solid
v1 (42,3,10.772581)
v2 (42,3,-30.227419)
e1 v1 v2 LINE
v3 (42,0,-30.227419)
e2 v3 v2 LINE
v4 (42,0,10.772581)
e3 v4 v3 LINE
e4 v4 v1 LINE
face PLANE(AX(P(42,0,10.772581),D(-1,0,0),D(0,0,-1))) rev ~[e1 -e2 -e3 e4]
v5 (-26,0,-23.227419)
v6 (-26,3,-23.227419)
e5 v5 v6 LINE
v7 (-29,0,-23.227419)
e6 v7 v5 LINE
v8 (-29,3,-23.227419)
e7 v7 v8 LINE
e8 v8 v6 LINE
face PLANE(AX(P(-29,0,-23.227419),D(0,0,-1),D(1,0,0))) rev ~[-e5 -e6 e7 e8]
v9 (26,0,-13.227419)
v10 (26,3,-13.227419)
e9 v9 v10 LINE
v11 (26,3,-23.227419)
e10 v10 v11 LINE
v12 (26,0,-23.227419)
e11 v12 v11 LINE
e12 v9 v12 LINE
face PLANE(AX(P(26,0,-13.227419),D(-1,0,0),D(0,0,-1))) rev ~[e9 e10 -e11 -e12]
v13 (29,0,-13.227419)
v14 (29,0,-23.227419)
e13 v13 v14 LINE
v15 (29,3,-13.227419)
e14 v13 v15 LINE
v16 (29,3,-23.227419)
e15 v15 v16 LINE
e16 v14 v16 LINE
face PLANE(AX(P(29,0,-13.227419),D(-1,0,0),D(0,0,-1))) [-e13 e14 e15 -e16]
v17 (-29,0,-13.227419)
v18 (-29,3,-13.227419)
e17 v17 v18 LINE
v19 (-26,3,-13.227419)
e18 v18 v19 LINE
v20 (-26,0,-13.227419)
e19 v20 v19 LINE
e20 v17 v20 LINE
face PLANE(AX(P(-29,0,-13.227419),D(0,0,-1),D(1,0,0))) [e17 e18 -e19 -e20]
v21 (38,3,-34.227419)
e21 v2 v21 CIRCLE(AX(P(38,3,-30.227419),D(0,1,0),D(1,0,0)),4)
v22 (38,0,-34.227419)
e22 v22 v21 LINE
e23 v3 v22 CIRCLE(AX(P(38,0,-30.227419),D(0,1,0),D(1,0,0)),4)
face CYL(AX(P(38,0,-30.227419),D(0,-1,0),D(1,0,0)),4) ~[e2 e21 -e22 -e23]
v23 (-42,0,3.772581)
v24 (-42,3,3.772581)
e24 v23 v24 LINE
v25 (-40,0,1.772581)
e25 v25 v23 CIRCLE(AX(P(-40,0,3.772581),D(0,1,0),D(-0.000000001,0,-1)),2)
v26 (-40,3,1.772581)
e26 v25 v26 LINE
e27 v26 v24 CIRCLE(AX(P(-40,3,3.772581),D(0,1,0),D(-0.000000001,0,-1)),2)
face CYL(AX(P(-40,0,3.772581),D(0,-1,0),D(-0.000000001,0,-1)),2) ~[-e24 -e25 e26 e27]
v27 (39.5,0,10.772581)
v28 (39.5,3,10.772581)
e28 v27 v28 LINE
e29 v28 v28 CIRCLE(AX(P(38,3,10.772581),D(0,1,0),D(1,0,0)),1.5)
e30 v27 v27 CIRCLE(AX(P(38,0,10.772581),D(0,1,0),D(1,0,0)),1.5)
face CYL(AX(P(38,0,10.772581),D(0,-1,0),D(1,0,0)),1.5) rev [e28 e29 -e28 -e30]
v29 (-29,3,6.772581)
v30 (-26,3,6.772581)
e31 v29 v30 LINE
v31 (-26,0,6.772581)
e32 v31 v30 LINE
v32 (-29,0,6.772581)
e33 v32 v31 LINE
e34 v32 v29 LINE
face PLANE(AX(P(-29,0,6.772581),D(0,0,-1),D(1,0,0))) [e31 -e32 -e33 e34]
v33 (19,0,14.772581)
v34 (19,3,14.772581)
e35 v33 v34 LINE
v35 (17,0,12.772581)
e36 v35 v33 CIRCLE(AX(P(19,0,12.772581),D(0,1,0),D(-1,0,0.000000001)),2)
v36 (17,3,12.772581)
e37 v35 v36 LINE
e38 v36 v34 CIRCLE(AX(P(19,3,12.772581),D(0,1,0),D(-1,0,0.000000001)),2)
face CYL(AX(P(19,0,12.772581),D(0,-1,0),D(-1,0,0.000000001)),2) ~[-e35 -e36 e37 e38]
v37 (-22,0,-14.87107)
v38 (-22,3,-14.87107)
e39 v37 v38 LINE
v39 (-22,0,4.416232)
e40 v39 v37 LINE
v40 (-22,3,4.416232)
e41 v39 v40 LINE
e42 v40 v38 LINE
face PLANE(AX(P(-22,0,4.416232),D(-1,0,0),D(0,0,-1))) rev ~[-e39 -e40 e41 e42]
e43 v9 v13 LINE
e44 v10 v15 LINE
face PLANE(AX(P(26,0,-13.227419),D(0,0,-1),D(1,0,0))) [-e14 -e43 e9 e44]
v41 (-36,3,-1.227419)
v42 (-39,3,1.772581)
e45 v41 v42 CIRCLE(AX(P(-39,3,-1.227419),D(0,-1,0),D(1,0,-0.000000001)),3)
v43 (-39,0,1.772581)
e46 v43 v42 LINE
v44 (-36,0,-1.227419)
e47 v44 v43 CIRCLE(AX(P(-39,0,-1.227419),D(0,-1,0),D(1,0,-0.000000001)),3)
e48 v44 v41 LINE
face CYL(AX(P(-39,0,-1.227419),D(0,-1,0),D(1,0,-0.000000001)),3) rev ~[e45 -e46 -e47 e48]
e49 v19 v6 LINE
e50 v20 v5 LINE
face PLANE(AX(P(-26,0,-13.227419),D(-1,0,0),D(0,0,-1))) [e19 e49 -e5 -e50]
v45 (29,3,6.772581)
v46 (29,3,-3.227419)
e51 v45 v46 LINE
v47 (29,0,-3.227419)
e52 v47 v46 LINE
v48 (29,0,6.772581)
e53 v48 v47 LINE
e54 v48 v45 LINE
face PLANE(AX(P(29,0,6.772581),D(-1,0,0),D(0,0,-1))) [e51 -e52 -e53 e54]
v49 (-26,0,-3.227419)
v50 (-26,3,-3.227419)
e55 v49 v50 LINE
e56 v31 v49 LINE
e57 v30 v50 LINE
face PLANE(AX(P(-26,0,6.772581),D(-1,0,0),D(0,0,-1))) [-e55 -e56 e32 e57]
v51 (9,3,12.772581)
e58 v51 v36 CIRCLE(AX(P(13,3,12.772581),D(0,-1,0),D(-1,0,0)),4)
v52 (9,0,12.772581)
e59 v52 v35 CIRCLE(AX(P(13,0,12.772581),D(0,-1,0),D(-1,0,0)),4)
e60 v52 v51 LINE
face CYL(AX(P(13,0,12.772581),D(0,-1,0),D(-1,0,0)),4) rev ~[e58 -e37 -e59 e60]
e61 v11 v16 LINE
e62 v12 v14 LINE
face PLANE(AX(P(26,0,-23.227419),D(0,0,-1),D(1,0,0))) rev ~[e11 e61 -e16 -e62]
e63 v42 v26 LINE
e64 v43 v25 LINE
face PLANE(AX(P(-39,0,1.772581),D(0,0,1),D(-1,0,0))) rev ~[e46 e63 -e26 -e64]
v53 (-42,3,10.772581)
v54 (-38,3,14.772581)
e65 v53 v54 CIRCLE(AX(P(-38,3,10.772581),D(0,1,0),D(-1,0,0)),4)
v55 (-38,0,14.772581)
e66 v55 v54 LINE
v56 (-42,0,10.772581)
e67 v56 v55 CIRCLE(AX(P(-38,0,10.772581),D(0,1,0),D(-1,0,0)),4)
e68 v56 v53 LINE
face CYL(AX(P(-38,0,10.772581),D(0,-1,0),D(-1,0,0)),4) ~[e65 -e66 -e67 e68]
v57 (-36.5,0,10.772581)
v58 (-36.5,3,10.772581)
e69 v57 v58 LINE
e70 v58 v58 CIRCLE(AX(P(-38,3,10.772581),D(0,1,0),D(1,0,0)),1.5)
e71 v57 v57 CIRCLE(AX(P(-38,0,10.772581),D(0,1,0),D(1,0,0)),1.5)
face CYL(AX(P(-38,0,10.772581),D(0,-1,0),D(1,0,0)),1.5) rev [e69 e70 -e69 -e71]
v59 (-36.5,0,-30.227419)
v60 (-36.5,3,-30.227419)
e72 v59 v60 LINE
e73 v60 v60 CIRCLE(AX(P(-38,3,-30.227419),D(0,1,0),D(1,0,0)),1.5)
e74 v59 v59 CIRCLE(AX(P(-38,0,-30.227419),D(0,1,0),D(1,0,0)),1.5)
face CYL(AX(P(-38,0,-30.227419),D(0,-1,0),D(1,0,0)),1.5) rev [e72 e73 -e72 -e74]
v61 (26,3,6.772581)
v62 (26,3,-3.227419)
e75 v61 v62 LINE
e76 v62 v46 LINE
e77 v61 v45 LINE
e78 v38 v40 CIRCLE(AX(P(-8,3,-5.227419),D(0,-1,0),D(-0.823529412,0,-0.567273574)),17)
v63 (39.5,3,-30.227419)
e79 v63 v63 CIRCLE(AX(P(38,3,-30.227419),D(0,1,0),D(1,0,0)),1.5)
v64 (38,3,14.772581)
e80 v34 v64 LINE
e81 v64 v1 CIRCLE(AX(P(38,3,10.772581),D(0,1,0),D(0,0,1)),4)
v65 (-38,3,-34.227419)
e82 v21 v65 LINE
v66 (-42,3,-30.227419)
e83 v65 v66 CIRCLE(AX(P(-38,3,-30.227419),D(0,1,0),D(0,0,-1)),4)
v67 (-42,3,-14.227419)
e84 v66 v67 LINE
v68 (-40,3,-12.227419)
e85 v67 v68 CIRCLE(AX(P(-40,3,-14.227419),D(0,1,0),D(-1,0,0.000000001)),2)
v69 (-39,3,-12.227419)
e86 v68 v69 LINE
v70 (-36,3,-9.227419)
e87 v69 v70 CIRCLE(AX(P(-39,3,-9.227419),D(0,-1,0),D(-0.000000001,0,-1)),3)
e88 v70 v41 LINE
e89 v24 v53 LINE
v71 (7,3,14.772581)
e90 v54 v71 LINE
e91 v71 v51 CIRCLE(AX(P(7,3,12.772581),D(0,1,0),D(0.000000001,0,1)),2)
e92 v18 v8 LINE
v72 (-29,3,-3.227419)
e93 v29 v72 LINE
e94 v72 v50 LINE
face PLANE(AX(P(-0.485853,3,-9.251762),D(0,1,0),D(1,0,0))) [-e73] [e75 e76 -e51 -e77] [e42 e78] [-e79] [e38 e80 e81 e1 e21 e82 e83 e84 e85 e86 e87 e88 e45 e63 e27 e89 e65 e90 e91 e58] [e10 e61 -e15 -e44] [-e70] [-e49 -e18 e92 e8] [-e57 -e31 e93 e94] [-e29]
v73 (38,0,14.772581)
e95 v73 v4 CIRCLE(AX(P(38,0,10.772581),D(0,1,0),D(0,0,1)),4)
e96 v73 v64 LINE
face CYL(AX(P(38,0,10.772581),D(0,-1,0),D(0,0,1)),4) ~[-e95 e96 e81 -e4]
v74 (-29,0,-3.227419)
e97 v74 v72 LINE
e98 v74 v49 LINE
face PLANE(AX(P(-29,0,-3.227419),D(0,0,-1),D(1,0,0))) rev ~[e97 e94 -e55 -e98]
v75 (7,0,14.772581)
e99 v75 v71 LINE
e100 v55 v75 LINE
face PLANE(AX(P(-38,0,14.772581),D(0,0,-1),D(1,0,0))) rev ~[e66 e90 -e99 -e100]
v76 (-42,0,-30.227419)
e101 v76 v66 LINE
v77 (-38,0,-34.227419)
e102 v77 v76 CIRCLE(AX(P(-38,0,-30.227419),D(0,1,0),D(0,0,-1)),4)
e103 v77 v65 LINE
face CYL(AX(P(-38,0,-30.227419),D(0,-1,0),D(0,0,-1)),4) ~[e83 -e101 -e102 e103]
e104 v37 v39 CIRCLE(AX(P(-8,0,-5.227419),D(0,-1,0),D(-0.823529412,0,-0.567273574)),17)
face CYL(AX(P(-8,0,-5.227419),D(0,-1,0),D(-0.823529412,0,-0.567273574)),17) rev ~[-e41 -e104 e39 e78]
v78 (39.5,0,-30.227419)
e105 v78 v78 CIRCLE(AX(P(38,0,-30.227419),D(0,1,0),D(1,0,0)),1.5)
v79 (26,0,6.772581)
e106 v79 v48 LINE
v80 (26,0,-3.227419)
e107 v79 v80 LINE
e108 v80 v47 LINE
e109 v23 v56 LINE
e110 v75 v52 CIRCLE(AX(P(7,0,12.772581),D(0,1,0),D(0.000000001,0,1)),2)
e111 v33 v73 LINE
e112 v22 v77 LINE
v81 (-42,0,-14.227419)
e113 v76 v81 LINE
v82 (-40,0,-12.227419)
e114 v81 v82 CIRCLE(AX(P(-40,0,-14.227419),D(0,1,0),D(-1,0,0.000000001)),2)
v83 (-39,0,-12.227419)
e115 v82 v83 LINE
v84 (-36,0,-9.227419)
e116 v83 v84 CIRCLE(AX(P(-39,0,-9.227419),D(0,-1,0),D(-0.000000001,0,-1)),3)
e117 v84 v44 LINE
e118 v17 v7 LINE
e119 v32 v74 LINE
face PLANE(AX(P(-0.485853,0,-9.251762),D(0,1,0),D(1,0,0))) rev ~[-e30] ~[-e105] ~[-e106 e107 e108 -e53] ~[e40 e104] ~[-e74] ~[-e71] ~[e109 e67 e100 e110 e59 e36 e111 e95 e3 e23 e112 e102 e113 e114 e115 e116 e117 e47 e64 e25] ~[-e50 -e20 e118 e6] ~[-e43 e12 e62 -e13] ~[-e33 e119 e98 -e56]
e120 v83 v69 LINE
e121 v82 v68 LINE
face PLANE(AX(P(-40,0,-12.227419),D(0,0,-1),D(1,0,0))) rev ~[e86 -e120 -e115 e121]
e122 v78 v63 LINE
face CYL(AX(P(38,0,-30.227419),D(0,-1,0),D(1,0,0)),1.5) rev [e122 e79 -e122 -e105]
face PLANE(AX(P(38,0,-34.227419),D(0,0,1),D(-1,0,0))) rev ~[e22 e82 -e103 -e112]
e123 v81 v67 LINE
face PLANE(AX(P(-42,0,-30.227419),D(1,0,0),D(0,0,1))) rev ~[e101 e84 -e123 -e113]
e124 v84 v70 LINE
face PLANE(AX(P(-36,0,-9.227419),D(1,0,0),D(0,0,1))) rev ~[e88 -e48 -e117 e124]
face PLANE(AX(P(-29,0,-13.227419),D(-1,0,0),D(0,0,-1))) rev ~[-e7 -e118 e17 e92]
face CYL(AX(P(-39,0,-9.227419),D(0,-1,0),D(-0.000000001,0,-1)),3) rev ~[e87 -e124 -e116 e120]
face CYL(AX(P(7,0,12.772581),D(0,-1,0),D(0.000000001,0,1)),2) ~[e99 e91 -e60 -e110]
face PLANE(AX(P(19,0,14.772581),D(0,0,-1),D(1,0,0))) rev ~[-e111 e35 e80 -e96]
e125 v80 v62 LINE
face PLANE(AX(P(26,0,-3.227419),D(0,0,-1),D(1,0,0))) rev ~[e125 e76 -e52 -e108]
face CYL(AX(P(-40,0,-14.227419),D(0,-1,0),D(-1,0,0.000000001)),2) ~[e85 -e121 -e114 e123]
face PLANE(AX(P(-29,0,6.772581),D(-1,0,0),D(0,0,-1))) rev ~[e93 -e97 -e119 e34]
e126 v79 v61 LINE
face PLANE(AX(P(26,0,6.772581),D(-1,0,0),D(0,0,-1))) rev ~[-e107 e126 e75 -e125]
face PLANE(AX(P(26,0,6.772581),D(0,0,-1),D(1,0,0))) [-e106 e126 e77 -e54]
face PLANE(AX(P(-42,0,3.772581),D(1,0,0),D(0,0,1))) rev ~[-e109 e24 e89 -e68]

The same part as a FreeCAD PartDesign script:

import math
import FreeCAD as App
import Part
import Sketcher
from FreeCAD import Vector

doc = App.newDocument("Part")
body = doc.addObject("PartDesign::Body", "Body")

# Sketch on XZ plane
sketch1 = doc.addObject("Sketcher::SketchObject", "Sketch")
body.addObject(sketch1)
sketch1.AttachmentSupport = (doc.XZ_Plane, [""])
sketch1.MapMode = "FlatFace"
sketch1.addGeometry([
    Part.LineSegment(Vector(-42, -30.227419, 0), Vector(-42, -14.227419, 0)),  # 0
    Part.ArcOfCircle(Part.Circle(Vector(-40, -14.227419, 0), Vector(0, 0, 1), 2), math.radians(90), math.radians(180)),  # 1
    Part.LineSegment(Vector(-40, -12.227419, 0), Vector(-39, -12.227419, 0)),  # 2
    Part.ArcOfCircle(Part.Circle(Vector(-39, -9.227419, 0), Vector(0, 0, 1), 3), math.radians(-90), math.radians(0)),  # 3
    Part.LineSegment(Vector(-36, -9.227419, 0), Vector(-36, -1.227419, 0)),  # 4
    Part.ArcOfCircle(Part.Circle(Vector(-39, -1.227419, 0), Vector(0, 0, 1), 3), math.radians(0), math.radians(90)),  # 5
    Part.LineSegment(Vector(-39, 1.772581, 0), Vector(-40, 1.772581, 0)),  # 6
    Part.ArcOfCircle(Part.Circle(Vector(-40, 3.772581, 0), Vector(0, 0, 1), 2), math.radians(-180), math.radians(-90)),  # 7
    Part.LineSegment(Vector(-42, 3.772581, 0), Vector(-42, 10.772581, 0)),  # 8
    Part.ArcOfCircle(Part.Circle(Vector(-38, 10.772581, 0), Vector(0, 0, 1), 4), math.radians(90), math.radians(180)),  # 9
    Part.LineSegment(Vector(-38, 14.772581, 0), Vector(7, 14.772581, 0)),  # 10
    Part.ArcOfCircle(Part.Circle(Vector(7, 12.772581, 0), Vector(0, 0, 1), 2), math.radians(0), math.radians(90)),  # 11
    Part.ArcOfCircle(Part.Circle(Vector(13, 12.772581, 0), Vector(0, 0, 1), 4), math.radians(180), math.radians(360)),  # 12
    Part.ArcOfCircle(Part.Circle(Vector(19, 12.772581, 0), Vector(0, 0, 1), 2), math.radians(90), math.radians(180)),  # 13
    Part.LineSegment(Vector(19, 14.772581, 0), Vector(38, 14.772581, 0)),  # 14
    Part.ArcOfCircle(Part.Circle(Vector(38, 10.772581, 0), Vector(0, 0, 1), 4), math.radians(0), math.radians(90)),  # 15
    Part.LineSegment(Vector(42, 10.772581, 0), Vector(42, -30.227419, 0)),  # 16
    Part.ArcOfCircle(Part.Circle(Vector(38, -30.227419, 0), Vector(0, 0, 1), 4), math.radians(-90), math.radians(0)),  # 17
    Part.LineSegment(Vector(38, -34.227419, 0), Vector(-38, -34.227419, 0)),  # 18
    Part.ArcOfCircle(Part.Circle(Vector(-38, -30.227419, 0), Vector(0, 0, 1), 4), math.radians(180), math.radians(270)),  # 19
    Part.Circle(Vector(-38, 10.772581, 0), Vector(0, 0, 1), 1.5),  # 20
    Part.LineSegment(Vector(-26, 6.772581, 0), Vector(-29, 6.772581, 0)),  # 21
    Part.LineSegment(Vector(-29, 6.772581, 0), Vector(-29, -3.227419, 0)),  # 22
    Part.LineSegment(Vector(-29, -3.227419, 0), Vector(-26, -3.227419, 0)),  # 23
    Part.LineSegment(Vector(-26, -3.227419, 0), Vector(-26, 6.772581, 0)),  # 24
    Part.ArcOfCircle(Part.Circle(Vector(-8, -5.227419, 0), Vector(0, 0, 1), 17), math.radians(-145.439678), math.radians(145.439678)),  # 25
    Part.LineSegment(Vector(-22, 4.416232, 0), Vector(-22, -14.87107, 0)),  # 26
    Part.Circle(Vector(38, 10.772581, 0), Vector(0, 0, 1), 1.5),  # 27
    Part.LineSegment(Vector(29, 6.772581, 0), Vector(26, 6.772581, 0)),  # 28
    Part.LineSegment(Vector(26, 6.772581, 0), Vector(26, -3.227419, 0)),  # 29
    Part.LineSegment(Vector(26, -3.227419, 0), Vector(29, -3.227419, 0)),  # 30
    Part.LineSegment(Vector(29, -3.227419, 0), Vector(29, 6.772581, 0)),  # 31
    Part.LineSegment(Vector(-26, -13.227419, 0), Vector(-29, -13.227419, 0)),  # 32
    Part.LineSegment(Vector(-29, -13.227419, 0), Vector(-29, -23.227419, 0)),  # 33
    Part.LineSegment(Vector(-29, -23.227419, 0), Vector(-26, -23.227419, 0)),  # 34
    Part.LineSegment(Vector(-26, -23.227419, 0), Vector(-26, -13.227419, 0)),  # 35
    Part.Circle(Vector(-38, -30.227419, 0), Vector(0, 0, 1), 1.5),  # 36
    Part.LineSegment(Vector(29, -13.227419, 0), Vector(26, -13.227419, 0)),  # 37
    Part.LineSegment(Vector(26, -13.227419, 0), Vector(26, -23.227419, 0)),  # 38
    Part.LineSegment(Vector(26, -23.227419, 0), Vector(29, -23.227419, 0)),  # 39
    Part.LineSegment(Vector(29, -23.227419, 0), Vector(29, -13.227419, 0)),  # 40
    Part.Circle(Vector(38, -30.227419, 0), Vector(0, 0, 1), 1.5),  # 41
], False)
sketch1.addConstraint([
    Sketcher.Constraint("Tangent", 0, 2, 1, 2),
    Sketcher.Constraint("Tangent", 1, 1, 2, 1),
    Sketcher.Constraint("Tangent", 2, 2, 3, 1),
    Sketcher.Constraint("Tangent", 3, 2, 4, 1),
    Sketcher.Constraint("Tangent", 4, 2, 5, 1),
    Sketcher.Constraint("Tangent", 5, 2, 6, 1),
    Sketcher.Constraint("Tangent", 6, 2, 7, 2),
    Sketcher.Constraint("Tangent", 7, 1, 8, 1),
    Sketcher.Constraint("Tangent", 8, 2, 9, 2),
    Sketcher.Constraint("Tangent", 9, 1, 10, 1),
    Sketcher.Constraint("Tangent", 10, 2, 11, 2),
    Sketcher.Constraint("Tangent", 11, 1, 12, 1),
    Sketcher.Constraint("Tangent", 12, 2, 13, 2),
    Sketcher.Constraint("Tangent", 13, 1, 14, 1),
    Sketcher.Constraint("Tangent", 14, 2, 15, 2),
    Sketcher.Constraint("Tangent", 15, 1, 16, 1),
    Sketcher.Constraint("Tangent", 16, 2, 17, 2),
    Sketcher.Constraint("Tangent", 17, 1, 18, 1),
    Sketcher.Constraint("Tangent", 18, 2, 19, 2),
    Sketcher.Constraint("Tangent", 19, 1, 0, 1),
    Sketcher.Constraint("Coincident", 21, 2, 22, 1),
    Sketcher.Constraint("Coincident", 22, 2, 23, 1),
    Sketcher.Constraint("Coincident", 23, 2, 24, 1),
    Sketcher.Constraint("Coincident", 24, 2, 21, 1),
    Sketcher.Constraint("Coincident", 25, 1, 26, 2),
    Sketcher.Constraint("Coincident", 26, 1, 25, 2),
    Sketcher.Constraint("Coincident", 28, 2, 29, 1),
    Sketcher.Constraint("Coincident", 29, 2, 30, 1),
    Sketcher.Constraint("Coincident", 30, 2, 31, 1),
    Sketcher.Constraint("Coincident", 31, 2, 28, 1),
    Sketcher.Constraint("Coincident", 32, 2, 33, 1),
    Sketcher.Constraint("Coincident", 33, 2, 34, 1),
    Sketcher.Constraint("Coincident", 34, 2, 35, 1),
    Sketcher.Constraint("Coincident", 35, 2, 32, 1),
    Sketcher.Constraint("Coincident", 37, 2, 38, 1),
    Sketcher.Constraint("Coincident", 38, 2, 39, 1),
    Sketcher.Constraint("Coincident", 39, 2, 40, 1),
    Sketcher.Constraint("Coincident", 40, 2, 37, 1),
    Sketcher.Constraint("Vertical", 0),
    Sketcher.Constraint("Horizontal", 2),
    Sketcher.Constraint("Vertical", 4),
    Sketcher.Constraint("Horizontal", 6),
    Sketcher.Constraint("Vertical", 8),
    Sketcher.Constraint("Horizontal", 10),
    Sketcher.Constraint("Horizontal", 14),
    Sketcher.Constraint("Vertical", 16),
    Sketcher.Constraint("Horizontal", 18),
    Sketcher.Constraint("Horizontal", 21),
    Sketcher.Constraint("Vertical", 22),
    Sketcher.Constraint("Horizontal", 23),
    Sketcher.Constraint("Vertical", 24),
    Sketcher.Constraint("Vertical", 26),
    Sketcher.Constraint("Horizontal", 28),
    Sketcher.Constraint("Vertical", 29),
    Sketcher.Constraint("Horizontal", 30),
    Sketcher.Constraint("Vertical", 31),
    Sketcher.Constraint("Horizontal", 32),
    Sketcher.Constraint("Vertical", 33),
    Sketcher.Constraint("Horizontal", 34),
    Sketcher.Constraint("Vertical", 35),
    Sketcher.Constraint("Horizontal", 37),
    Sketcher.Constraint("Vertical", 38),
    Sketcher.Constraint("Horizontal", 39),
    Sketcher.Constraint("Vertical", 40),
    Sketcher.Constraint("Coincident", 20, 3, 9, 3),
    Sketcher.Constraint("Coincident", 27, 3, 15, 3),
    Sketcher.Constraint("Coincident", 36, 3, 19, 3),
    Sketcher.Constraint("Coincident", 41, 3, 17, 3),
    Sketcher.Constraint("Equal", 3, 5),
    Sketcher.Constraint("Equal", 1, 7),
    Sketcher.Constraint("Equal", 7, 11),
    Sketcher.Constraint("Equal", 9, 12),
    Sketcher.Constraint("Equal", 11, 13),
    Sketcher.Constraint("Equal", 12, 15),
    Sketcher.Constraint("Equal", 15, 17),
    Sketcher.Constraint("Equal", 17, 19),
    Sketcher.Constraint("Equal", 20, 27),
    Sketcher.Constraint("Equal", 27, 36),
    Sketcher.Constraint("Equal", 36, 41),
    Sketcher.Constraint("Symmetric", 9, 3, 15, 3, -2),
    Sketcher.Constraint("Symmetric", 24, 2, 28, 2, -2),
    Sketcher.Constraint("Symmetric", 22, 2, 30, 2, -2),
    Sketcher.Constraint("Symmetric", 35, 2, 37, 2, -2),
    Sketcher.Constraint("Symmetric", 33, 2, 39, 2, -2),
    Sketcher.Constraint("Horizontal", 11, 3, 12, 3),
    Sketcher.Constraint("Vertical", 1, 3, 7, 3),
    Sketcher.Constraint("Vertical", 22, 2, 32, 2),
    Sketcher.Constraint("Vertical", 24, 2, 34, 2),
    Sketcher.Constraint("Equal", 31, 33),
    Sketcher.Constraint("Diameter", 20, 3.0),
    Sketcher.Constraint("Radius", 1, 2.0),
    Sketcher.Constraint("Radius", 3, 3.0),
    Sketcher.Constraint("Radius", 9, 4.0),
    Sketcher.Constraint("Radius", 25, 17.0),
    Sketcher.Constraint("DistanceX", 2, 1, 2, 2, 1.0),
    Sketcher.Constraint("DistanceX", 10, 1, 10, 2, 45.0),
    Sketcher.Constraint("DistanceX", 14, 1, 14, 2, 19.0),
    Sketcher.Constraint("DistanceX", 21, 2, 21, 1, 3.0),
    Sketcher.Constraint("DistanceY", 0, 1, 0, 2, 16.0),
    Sketcher.Constraint("DistanceY", 4, 1, 4, 2, 8.0),
    Sketcher.Constraint("DistanceY", 8, 1, 8, 2, 7.0),
    Sketcher.Constraint("DistanceY", 22, 2, 22, 1, 10.0),
    Sketcher.Constraint("DistanceX", 25, 3, -1, 1, 8.0),
    Sketcher.Constraint("DistanceX", 21, 2, -1, 1, 29.0),
    Sketcher.Constraint("DistanceX", 25, 1, -1, 1, 22.0),
    Sketcher.Constraint("DistanceY", 25, 3, 11, 3, 18.0),
    Sketcher.Constraint("DistanceY", 21, 2, 20, 3, 4.0),
    Sketcher.Constraint("DistanceY", 32, 2, 3, 2, 4.0),
    Sketcher.Constraint("DistanceY", 1, 3, -1, 1, 14.227419),
])
pad1 = doc.addObject("PartDesign::Pad", "Pad")
body.addObject(pad1)
pad1.Profile = sketch1
pad1.Length = 3
pad1.Reversed = True

doc.recompute()
